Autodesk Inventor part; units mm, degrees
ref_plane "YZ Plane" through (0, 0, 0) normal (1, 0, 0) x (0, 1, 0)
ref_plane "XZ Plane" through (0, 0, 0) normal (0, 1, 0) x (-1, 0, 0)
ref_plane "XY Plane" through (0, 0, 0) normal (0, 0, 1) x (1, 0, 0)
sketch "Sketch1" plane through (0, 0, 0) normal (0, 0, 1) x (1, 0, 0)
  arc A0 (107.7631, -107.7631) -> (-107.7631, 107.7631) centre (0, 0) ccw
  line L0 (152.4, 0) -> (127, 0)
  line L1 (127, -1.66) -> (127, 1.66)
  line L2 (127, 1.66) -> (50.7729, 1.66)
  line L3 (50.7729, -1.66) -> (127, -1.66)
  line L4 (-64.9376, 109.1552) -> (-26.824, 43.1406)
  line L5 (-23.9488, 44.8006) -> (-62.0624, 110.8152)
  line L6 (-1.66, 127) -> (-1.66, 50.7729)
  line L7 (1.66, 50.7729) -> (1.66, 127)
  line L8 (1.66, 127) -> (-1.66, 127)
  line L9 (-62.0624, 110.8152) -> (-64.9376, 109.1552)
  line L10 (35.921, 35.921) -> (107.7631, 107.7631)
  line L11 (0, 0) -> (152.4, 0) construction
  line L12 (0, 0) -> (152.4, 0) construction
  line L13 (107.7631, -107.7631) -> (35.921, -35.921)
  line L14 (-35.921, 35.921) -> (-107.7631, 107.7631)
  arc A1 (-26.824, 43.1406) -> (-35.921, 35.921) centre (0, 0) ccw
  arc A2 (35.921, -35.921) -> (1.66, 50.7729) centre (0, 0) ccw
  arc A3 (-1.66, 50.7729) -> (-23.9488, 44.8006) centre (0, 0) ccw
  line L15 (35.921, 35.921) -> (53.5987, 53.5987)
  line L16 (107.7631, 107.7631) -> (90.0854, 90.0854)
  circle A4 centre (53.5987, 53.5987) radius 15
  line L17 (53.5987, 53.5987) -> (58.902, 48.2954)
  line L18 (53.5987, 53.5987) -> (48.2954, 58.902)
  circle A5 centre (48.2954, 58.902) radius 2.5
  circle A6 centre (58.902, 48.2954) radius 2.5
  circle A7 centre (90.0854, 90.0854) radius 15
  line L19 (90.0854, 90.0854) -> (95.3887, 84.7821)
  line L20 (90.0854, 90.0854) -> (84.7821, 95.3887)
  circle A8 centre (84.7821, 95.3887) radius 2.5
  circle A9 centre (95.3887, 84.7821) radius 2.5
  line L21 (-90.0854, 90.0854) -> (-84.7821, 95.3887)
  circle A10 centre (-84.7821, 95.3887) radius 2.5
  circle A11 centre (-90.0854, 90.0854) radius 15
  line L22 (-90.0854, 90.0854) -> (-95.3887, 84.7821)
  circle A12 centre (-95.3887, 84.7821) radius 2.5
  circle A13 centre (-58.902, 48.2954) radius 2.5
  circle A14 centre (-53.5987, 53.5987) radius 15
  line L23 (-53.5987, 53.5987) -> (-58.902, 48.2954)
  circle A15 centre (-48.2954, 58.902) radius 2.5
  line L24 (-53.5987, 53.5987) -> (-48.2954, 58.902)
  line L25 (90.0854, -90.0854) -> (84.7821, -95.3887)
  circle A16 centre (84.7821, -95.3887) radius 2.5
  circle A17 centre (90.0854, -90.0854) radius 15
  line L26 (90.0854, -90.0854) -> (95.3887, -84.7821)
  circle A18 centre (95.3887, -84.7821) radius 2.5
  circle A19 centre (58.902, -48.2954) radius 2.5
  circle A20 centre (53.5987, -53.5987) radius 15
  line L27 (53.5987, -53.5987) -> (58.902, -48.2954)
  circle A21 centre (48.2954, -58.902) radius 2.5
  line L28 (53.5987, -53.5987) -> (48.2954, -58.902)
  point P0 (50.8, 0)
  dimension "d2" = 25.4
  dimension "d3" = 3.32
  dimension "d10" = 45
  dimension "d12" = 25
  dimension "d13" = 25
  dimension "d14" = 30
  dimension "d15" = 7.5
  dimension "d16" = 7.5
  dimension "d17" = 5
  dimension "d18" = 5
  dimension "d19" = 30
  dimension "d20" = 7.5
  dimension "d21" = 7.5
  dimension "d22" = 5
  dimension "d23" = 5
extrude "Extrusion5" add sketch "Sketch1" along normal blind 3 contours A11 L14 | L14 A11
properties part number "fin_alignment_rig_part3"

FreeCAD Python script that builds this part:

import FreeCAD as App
import Part
import Sketcher

V = App.Vector

doc = App.newDocument("Part")
params = doc.addObject("Spreadsheet::Sheet", "Params")
for row, (alias, value) in enumerate([
    ("sketch1_diameter", "30 mm"),
    ("sketch1_diameter2", "5 mm"),
    ("pad1_length", "3 mm"),
], start=1):
    params.set(f"A{row}", alias)
    params.set(f"B{row}", "=" + value)
    params.setAlias(f"B{row}", alias)

body = doc.addObject("PartDesign::Body", "Body")

sketch1 = body.newObject("Sketcher::SketchObject", "Sketch")
sketch1.AttachmentSupport = (doc.getObject("XY_Plane"), [""])
sketch1.MapMode = "FlatFace"
sketch1.addGeometry([
    Part.Circle(V(-90.1, 90.1, 0), V(0, 0, 1), 15),
    Part.Circle(V(-84.8, 95.4, 0), V(0, 0, 1), 2.5),
    Part.Circle(V(-95.4, 84.8, 0), V(0, 0, 1), 2.5),
], False)
sketch1.addConstraint([
    Sketcher.Constraint("Equal", 1, 2),
    Sketcher.Constraint("Diameter", 0, 30.0),
    Sketcher.Constraint("Diameter", 1, 5.0),
    Sketcher.Constraint("DistanceX", 1, 3, -1, 1, 84.782),
    Sketcher.Constraint("DistanceY", -1, 1, 2, 3, 84.782),
    Sketcher.Constraint("DistanceX", 0, 3, -1, 1, 90.0854),
    Sketcher.Constraint("DistanceY", -1, 1, 0, 3, 90.0854),
    Sketcher.Constraint("DistanceY", -1, 1, 1, 3, 95.3887),
    Sketcher.Constraint("DistanceX", 2, 3, -1, 1, 95.3887),
])
sketch1.setExpression("Constraints[1]", "Params.sketch1_diameter")
sketch1.setExpression("Constraints[2]", "Params.sketch1_diameter2")
pad1 = body.newObject("PartDesign::Pad", "Pad")
pad1.Profile = sketch1
pad1.setExpression("Length", "Params.pad1_length")

doc.recompute()
